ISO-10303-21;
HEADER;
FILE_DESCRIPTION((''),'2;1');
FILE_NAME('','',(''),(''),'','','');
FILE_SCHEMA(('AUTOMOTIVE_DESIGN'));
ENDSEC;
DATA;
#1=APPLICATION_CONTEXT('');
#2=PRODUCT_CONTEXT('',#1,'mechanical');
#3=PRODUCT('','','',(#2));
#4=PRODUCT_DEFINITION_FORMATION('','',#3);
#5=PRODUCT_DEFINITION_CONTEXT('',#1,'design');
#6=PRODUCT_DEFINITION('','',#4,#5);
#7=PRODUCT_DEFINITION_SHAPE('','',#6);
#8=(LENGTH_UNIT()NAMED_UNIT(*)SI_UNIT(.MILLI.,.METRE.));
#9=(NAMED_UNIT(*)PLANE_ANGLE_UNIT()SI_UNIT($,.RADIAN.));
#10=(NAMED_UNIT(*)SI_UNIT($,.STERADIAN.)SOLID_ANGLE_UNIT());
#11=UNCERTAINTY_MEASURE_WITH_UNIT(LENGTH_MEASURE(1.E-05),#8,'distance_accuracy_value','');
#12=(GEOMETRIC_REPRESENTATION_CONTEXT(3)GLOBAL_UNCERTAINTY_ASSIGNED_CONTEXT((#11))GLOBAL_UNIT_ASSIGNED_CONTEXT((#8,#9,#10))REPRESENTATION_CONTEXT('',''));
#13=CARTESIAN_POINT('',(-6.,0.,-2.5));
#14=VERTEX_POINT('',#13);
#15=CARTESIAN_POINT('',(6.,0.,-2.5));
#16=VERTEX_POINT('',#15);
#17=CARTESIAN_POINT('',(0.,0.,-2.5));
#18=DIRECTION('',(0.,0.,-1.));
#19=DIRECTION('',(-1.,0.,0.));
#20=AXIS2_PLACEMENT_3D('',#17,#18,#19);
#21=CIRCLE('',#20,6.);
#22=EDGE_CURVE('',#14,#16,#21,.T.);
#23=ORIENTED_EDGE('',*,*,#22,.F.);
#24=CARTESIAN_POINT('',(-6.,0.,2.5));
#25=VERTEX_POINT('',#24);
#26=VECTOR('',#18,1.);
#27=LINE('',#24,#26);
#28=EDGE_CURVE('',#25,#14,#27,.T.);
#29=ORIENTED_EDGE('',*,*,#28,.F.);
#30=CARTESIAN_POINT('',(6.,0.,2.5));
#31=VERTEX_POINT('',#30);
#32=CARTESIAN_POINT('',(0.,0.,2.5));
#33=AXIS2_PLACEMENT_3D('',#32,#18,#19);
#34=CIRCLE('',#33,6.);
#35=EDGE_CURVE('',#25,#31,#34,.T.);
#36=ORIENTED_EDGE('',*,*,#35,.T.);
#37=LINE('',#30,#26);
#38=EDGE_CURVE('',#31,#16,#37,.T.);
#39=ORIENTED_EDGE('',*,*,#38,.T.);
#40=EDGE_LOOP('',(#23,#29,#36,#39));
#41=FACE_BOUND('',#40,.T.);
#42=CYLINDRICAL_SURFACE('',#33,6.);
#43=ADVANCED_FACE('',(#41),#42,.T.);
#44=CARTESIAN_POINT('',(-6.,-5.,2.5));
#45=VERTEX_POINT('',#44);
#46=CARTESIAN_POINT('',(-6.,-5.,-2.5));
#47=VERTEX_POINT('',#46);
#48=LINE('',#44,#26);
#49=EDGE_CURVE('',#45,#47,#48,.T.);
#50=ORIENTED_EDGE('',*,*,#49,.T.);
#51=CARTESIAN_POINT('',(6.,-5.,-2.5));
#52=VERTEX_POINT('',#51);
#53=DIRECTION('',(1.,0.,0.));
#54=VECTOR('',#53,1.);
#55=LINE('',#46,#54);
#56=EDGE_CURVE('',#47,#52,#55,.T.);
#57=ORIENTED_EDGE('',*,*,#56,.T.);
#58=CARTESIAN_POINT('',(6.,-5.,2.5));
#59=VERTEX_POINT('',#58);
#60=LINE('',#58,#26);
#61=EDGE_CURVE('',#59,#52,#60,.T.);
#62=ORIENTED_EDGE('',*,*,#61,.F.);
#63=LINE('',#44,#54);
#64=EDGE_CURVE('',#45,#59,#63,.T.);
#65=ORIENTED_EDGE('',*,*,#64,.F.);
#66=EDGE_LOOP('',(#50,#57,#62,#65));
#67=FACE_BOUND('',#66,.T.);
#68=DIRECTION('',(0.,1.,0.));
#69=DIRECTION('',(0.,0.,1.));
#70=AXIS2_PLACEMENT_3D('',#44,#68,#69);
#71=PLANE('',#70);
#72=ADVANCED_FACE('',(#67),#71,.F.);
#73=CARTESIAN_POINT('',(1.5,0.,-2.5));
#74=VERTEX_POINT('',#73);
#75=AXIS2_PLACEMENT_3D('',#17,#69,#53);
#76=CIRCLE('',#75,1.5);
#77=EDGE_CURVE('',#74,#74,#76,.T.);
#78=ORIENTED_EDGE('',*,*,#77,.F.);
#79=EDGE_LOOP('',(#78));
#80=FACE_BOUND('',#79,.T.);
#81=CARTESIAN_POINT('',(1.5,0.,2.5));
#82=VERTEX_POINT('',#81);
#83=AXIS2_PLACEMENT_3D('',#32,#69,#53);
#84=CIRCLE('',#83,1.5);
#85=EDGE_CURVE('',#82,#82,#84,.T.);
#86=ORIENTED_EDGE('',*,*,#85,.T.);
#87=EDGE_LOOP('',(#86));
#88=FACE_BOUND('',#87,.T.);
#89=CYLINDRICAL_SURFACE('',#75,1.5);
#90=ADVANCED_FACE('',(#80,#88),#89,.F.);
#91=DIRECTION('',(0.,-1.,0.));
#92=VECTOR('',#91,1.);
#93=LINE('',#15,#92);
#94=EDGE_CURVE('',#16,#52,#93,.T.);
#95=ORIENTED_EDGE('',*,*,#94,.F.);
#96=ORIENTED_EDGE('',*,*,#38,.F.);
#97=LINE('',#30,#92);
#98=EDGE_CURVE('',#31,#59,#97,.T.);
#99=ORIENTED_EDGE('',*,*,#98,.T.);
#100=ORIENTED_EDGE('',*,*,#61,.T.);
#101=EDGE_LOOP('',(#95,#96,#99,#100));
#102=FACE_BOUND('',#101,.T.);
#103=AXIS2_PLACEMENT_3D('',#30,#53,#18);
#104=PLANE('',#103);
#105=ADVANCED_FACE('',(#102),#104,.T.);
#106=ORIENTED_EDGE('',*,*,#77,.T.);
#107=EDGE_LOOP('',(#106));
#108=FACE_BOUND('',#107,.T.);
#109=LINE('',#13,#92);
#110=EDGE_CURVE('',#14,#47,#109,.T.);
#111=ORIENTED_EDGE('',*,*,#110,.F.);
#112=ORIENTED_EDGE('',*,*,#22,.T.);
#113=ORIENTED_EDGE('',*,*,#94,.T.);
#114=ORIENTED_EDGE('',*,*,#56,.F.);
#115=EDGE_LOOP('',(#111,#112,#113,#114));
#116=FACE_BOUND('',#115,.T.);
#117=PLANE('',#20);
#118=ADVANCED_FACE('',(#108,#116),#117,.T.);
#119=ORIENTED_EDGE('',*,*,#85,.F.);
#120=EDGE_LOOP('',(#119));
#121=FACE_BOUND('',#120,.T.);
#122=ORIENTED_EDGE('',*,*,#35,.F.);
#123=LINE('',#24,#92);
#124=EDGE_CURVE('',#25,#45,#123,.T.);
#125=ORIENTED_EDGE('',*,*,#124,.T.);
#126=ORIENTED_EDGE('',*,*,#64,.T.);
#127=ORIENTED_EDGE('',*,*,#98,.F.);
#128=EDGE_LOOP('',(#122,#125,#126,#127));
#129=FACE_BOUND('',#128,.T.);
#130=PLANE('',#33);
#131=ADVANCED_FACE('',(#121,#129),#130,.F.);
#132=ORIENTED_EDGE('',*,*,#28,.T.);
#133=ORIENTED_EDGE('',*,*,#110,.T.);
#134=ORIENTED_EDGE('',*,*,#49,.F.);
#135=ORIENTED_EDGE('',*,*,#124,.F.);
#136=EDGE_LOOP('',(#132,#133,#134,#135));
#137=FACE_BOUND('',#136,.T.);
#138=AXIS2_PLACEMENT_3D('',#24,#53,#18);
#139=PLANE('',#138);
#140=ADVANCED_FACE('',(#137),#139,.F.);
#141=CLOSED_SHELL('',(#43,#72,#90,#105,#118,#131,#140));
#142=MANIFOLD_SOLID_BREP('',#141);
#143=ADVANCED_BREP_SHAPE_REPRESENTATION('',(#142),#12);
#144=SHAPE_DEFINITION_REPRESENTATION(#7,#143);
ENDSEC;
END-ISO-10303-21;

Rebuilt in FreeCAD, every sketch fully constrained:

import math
import FreeCAD as App
import Part
import Sketcher

V = App.Vector

doc = App.newDocument("Part")
body = doc.addObject("PartDesign::Body", "Body")

sketch1 = body.newObject("Sketcher::SketchObject", "Sketch")
sketch1.AttachmentSupport = (doc.getObject("XY_Plane"), [""])
sketch1.MapMode = "FlatFace"
sketch1.addGeometry([
    Part.LineSegment(V(-6, 0, 0), V(-6, -5, 0)),
    Part.LineSegment(V(-6, -5, 0), V(6, -5, 0)),
    Part.LineSegment(V(6, -5, 0), V(6, 0, 0)),
    Part.ArcOfCircle(Part.Circle(V(0, 0, 0), V(0, 0, 1), 6), math.radians(0), math.radians(180)),
], False)
sketch1.addConstraint([
    Sketcher.Constraint("Coincident", 0, 2, 1, 1),
    Sketcher.Constraint("Coincident", 1, 2, 2, 1),
    Sketcher.Constraint("Tangent", 2, 2, 3, 1),
    Sketcher.Constraint("Tangent", 3, 2, 0, 1),
    Sketcher.Constraint("Vertical", 0),
    Sketcher.Constraint("Horizontal", 1),
    Sketcher.Constraint("Vertical", 2),
    Sketcher.Constraint("Coincident", 3, 3, -1, 1),
    Sketcher.Constraint("Radius", 3, 6.0),
    Sketcher.Constraint("DistanceY", 0, 2, 0, 1, 5.0),
])
pad1 = body.newObject("PartDesign::Pad", "Pad")
pad1.Profile = sketch1
pad1.Length = 5
pad1.Midplane = True

sketch2 = body.newObject("Sketcher::SketchObject", "Sketch001")
sketch2.AttachmentSupport = (doc.getObject("XY_Plane"), [""])
sketch2.MapMode = "FlatFace"
sketch2.addGeometry(Part.Circle(V(0, 0, 0), V(0, 0, 1), 1.5), False)
sketch2.addConstraint([
    Sketcher.Constraint("Coincident", 0, 3, -1, 1),
    Sketcher.Constraint("Diameter", 0, 3.0),
])
pocket1 = body.newObject("PartDesign::Pocket", "Pocket")
pocket1.Profile = sketch2
pocket1.Type = "ThroughAll"
pocket1.Midplane = True

doc.recompute()
